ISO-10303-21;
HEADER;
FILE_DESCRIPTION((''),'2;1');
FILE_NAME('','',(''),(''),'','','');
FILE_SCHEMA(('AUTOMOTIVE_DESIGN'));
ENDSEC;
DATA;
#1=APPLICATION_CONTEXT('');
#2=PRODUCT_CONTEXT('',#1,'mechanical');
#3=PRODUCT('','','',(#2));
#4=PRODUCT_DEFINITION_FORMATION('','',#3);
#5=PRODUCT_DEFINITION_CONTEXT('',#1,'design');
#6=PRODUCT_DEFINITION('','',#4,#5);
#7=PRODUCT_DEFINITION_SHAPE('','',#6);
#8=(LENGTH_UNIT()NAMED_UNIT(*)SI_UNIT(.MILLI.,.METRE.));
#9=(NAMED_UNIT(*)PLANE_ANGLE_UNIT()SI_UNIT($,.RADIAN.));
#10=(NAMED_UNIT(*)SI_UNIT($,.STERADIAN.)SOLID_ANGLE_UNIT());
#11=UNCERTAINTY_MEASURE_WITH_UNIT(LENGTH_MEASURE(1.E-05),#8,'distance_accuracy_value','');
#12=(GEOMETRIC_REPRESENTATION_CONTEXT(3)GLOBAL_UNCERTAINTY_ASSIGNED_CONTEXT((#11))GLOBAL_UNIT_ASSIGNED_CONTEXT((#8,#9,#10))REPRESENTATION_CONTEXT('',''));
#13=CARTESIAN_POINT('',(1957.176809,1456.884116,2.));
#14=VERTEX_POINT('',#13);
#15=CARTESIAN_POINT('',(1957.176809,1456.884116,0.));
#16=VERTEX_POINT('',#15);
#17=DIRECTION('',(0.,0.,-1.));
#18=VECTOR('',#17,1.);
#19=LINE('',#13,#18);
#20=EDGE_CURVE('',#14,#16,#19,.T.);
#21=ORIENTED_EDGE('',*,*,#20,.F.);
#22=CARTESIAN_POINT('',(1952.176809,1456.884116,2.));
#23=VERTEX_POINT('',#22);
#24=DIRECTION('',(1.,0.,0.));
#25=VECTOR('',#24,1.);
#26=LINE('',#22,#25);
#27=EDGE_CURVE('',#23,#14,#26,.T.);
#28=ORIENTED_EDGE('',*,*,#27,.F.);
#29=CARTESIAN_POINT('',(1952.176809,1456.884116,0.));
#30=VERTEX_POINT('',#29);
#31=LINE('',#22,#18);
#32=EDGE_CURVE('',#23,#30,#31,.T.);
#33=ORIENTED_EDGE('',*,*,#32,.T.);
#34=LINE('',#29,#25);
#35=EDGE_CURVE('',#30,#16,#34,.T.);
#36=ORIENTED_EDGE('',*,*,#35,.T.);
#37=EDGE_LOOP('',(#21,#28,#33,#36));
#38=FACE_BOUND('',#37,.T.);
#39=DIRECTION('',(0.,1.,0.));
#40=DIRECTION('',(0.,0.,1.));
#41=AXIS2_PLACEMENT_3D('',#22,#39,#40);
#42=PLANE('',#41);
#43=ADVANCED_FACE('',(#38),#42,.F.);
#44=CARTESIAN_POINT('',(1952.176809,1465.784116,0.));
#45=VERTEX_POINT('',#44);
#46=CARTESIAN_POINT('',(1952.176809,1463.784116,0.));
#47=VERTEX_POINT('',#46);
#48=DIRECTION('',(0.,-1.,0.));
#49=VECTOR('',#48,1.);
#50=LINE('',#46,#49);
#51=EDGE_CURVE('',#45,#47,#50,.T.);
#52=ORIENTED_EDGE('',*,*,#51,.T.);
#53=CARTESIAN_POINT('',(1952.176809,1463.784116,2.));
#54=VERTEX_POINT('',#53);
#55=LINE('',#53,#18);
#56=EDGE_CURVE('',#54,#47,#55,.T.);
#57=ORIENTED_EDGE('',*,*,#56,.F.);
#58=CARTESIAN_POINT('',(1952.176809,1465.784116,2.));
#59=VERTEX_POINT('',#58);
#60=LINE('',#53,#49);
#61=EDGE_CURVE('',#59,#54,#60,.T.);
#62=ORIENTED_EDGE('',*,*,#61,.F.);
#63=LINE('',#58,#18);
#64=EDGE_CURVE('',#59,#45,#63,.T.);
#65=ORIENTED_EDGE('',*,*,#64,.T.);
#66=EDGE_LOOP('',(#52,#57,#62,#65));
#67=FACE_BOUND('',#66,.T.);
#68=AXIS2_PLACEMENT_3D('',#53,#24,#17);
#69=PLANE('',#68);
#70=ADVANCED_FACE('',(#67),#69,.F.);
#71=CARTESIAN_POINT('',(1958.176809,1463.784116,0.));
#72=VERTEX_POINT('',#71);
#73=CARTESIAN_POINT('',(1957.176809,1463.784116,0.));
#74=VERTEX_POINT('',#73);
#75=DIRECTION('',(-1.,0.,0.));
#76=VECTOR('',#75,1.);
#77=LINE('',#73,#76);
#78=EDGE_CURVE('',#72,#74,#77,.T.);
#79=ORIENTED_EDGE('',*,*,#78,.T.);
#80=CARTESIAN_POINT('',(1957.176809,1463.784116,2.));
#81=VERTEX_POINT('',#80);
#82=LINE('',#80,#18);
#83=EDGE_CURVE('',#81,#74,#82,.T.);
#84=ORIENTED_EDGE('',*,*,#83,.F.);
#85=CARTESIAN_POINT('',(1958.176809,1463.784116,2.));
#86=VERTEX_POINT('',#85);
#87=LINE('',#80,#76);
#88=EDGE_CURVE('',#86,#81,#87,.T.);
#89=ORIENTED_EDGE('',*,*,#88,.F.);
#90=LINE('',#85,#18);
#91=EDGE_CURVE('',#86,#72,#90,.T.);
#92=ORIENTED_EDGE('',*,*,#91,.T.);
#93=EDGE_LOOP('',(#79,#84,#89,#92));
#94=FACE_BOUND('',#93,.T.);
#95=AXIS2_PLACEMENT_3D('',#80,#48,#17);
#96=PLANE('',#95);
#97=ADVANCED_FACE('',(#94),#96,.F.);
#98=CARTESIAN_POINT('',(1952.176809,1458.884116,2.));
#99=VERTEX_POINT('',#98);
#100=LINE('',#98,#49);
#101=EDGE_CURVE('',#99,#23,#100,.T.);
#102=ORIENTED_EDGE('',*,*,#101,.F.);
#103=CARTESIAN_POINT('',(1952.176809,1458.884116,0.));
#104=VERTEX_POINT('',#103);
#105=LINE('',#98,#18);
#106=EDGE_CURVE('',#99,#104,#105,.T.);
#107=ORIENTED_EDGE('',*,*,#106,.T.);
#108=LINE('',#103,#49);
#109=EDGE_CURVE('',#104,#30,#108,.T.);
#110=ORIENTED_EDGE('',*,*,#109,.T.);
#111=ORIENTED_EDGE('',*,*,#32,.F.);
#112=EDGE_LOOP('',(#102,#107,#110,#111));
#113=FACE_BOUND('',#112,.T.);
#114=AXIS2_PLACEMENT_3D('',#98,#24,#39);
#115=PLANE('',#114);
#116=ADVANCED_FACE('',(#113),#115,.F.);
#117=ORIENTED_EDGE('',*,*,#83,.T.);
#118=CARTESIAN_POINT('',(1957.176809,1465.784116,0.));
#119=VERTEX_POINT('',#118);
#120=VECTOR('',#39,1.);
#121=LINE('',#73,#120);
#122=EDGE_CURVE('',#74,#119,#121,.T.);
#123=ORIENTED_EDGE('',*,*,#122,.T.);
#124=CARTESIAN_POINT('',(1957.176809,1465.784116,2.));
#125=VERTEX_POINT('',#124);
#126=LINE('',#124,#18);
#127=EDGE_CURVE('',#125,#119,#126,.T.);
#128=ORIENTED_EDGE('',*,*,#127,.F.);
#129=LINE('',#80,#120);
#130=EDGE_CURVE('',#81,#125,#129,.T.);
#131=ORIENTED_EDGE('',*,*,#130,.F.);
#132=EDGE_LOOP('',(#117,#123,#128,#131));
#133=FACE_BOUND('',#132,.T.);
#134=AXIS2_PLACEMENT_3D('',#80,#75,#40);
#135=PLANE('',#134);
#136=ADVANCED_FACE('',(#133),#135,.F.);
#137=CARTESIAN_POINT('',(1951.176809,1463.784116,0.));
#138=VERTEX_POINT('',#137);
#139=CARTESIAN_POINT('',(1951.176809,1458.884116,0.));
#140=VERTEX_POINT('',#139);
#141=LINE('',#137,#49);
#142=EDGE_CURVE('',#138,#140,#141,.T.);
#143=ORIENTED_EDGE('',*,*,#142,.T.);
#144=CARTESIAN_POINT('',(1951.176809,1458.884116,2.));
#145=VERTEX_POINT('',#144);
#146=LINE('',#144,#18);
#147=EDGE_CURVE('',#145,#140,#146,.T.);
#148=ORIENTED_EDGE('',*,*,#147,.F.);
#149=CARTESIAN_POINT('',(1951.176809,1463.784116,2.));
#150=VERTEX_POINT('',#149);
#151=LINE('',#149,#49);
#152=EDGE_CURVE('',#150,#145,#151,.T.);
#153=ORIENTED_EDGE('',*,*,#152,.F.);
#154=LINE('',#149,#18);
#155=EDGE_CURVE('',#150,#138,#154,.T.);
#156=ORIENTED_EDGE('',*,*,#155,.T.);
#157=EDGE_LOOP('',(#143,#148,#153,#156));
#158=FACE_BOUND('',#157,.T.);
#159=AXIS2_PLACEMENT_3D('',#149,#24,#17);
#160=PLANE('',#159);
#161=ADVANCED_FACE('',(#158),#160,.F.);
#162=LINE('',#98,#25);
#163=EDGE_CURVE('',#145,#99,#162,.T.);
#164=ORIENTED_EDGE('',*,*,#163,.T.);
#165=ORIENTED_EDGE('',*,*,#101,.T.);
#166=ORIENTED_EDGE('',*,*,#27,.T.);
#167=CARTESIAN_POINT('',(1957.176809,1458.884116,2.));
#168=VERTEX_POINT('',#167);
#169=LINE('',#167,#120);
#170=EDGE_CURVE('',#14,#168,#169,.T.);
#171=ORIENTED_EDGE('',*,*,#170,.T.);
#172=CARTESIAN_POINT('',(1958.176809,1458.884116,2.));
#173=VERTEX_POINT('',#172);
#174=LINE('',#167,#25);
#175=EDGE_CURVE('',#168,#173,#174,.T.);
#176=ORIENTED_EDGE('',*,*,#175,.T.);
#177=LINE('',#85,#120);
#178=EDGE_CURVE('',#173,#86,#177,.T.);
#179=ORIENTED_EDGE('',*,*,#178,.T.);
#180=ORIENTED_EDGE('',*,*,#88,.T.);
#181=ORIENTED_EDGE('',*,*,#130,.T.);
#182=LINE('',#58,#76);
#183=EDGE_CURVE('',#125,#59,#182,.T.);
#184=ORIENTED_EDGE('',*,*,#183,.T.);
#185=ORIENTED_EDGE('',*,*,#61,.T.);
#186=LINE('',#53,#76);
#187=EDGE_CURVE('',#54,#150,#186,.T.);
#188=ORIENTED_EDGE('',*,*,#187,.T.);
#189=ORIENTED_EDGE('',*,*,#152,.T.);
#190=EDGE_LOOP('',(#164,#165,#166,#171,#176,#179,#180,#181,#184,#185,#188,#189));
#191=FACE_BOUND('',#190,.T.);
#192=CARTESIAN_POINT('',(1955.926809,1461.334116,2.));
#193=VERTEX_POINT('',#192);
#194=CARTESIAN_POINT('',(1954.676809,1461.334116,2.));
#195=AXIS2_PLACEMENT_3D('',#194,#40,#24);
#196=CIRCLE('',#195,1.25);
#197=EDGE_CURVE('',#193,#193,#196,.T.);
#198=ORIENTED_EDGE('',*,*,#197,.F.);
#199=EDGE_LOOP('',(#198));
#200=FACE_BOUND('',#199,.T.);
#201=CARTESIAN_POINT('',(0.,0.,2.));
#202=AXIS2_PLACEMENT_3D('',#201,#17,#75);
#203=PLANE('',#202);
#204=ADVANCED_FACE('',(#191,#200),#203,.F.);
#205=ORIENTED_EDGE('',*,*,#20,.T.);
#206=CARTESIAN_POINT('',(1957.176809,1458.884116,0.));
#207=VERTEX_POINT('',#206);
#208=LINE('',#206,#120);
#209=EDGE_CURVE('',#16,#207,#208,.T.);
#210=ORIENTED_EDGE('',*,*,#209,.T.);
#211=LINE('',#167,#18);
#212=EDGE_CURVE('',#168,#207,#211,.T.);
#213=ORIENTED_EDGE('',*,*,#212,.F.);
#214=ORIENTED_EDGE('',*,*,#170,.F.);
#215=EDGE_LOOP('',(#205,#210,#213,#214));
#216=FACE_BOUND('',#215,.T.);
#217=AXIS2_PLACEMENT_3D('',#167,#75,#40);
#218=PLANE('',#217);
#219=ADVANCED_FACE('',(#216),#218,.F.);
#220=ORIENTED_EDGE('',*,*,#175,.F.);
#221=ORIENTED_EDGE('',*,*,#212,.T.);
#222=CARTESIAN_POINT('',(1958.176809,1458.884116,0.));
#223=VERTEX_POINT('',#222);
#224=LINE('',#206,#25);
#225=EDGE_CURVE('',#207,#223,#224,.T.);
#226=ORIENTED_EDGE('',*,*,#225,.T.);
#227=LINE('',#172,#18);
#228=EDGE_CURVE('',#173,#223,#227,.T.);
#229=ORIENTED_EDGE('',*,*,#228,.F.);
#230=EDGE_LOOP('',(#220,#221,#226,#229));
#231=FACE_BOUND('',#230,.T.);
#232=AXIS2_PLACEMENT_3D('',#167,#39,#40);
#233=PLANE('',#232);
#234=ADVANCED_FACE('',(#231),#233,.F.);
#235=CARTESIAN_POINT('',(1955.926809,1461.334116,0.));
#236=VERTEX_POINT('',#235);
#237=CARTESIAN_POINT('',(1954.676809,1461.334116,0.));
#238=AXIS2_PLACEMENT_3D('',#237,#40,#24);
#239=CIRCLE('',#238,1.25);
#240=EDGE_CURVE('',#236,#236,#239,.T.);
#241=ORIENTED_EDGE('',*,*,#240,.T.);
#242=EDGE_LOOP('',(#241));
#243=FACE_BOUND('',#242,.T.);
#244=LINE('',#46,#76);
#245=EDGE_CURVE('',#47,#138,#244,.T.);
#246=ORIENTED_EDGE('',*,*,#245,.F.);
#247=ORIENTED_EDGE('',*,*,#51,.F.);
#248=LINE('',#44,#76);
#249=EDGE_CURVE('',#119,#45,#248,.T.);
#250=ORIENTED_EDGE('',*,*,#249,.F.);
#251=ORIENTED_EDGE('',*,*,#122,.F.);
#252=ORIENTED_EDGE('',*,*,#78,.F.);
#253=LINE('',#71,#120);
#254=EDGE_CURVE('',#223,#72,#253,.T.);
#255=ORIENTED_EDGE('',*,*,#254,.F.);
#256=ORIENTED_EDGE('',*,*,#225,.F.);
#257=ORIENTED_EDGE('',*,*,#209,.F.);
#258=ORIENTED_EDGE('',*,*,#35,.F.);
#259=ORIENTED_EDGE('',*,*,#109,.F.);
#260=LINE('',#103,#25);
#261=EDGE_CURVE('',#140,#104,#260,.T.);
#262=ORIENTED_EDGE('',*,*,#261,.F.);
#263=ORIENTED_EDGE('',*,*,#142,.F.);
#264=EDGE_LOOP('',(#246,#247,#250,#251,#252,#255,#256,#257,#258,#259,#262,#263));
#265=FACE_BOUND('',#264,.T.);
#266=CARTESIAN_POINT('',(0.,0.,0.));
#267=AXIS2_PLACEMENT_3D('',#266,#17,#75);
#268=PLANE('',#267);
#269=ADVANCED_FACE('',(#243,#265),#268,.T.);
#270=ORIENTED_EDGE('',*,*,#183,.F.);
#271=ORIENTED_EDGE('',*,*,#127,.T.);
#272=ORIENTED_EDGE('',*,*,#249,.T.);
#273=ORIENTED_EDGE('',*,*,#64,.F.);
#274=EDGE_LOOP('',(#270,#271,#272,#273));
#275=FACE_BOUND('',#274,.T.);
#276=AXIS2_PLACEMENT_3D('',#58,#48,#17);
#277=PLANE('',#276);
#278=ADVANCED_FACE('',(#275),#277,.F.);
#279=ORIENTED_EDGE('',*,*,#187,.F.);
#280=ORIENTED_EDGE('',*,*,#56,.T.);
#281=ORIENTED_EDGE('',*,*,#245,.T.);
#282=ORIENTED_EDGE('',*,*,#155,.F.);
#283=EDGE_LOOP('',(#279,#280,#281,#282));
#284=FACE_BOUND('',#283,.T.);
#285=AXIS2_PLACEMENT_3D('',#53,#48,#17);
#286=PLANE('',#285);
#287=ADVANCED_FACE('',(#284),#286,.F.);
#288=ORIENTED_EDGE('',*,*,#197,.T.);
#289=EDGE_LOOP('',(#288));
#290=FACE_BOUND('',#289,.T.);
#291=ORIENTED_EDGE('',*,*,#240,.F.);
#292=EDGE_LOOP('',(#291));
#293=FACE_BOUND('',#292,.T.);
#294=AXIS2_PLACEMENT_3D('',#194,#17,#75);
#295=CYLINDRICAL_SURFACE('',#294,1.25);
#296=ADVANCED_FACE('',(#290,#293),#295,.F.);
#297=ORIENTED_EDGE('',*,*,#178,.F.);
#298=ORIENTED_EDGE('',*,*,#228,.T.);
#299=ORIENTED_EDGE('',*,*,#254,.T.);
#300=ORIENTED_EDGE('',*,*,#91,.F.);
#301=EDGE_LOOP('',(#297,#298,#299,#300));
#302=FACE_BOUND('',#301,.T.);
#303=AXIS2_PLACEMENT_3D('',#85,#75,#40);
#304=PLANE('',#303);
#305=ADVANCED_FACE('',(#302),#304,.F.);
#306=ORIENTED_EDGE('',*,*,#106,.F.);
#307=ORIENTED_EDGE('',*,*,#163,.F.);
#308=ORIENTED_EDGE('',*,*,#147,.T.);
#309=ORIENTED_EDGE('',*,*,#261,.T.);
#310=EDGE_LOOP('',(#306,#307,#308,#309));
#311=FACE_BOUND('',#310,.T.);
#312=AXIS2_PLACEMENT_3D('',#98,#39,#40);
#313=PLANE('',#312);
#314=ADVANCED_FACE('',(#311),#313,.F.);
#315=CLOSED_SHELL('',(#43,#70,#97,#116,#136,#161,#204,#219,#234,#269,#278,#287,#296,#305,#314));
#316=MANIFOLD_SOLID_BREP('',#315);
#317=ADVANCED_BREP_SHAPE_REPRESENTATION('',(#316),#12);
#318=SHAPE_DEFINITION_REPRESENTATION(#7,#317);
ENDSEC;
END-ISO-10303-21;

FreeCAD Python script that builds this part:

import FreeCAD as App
import Part
import Sketcher
from FreeCAD import Vector
Q = App.Units.Quantity


def add_polygon(sketch, points):
    """Adds a closed chain of lines whose ends are joined by coincident constraints."""
    first, n = sketch.GeometryCount, len(points)
    for a, b in zip(points, points[1:] + points[:1]):
        sketch.addGeometry(Part.LineSegment(App.Vector(*a, 0), App.Vector(*b, 0)), False)
    for i in range(n):
        sketch.addConstraint(Sketcher.Constraint("Coincident", first + i, 2, first + (i + 1) % n, 1))

doc = App.newDocument("Part")
body = doc.addObject("PartDesign::Body", "Body")

# Sketch on XY plane
sketch1 = body.newObject("Sketcher::SketchObject", "Sketch")
sketch1.AttachmentSupport = (doc.getObject("XY_Plane"), [""])
sketch1.MapMode = "FlatFace"
add_polygon(sketch1, [(1957.176809, 1465.784116), (1952.176809, 1465.784116), (1952.176809, 1463.784116), (1951.176809, 1463.784116), (1951.176809, 1458.884116), (1952.176809, 1458.884116), (1952.176809, 1456.884116), (1957.176809, 1456.884116), (1957.176809, 1458.884116), (1958.176809, 1458.884116), (1958.176809, 1463.784116), (1957.176809, 1463.784116)])  # lines 0-11
sketch1.addGeometry(Part.Circle(Vector(1954.676809, 1461.334116, 0), Vector(0, 0, 1), 1.25), False)  # 12
sketch1.addConstraint([
    Sketcher.Constraint("Horizontal", 0),
    Sketcher.Constraint("Vertical", 1),
    Sketcher.Constraint("Horizontal", 2),
    Sketcher.Constraint("Vertical", 3),
    Sketcher.Constraint("Horizontal", 4),
    Sketcher.Constraint("Vertical", 5),
    Sketcher.Constraint("Horizontal", 6),
    Sketcher.Constraint("Vertical", 7),
    Sketcher.Constraint("Horizontal", 8),
    Sketcher.Constraint("Vertical", 9),
    Sketcher.Constraint("Horizontal", 10),
    Sketcher.Constraint("Vertical", 11),
    Sketcher.Constraint("Horizontal", 4, 2, 7, 2),
    Sketcher.Constraint("Horizontal", 2, 2, 9, 2),
    Sketcher.Constraint("Vertical", 1, 2, 4, 2),
    Sketcher.Constraint("Vertical", 7, 2, 10, 2),
    Sketcher.Constraint("Equal", 4, 8),
    Sketcher.Constraint("Equal", 1, 5),
    Sketcher.Constraint("Diameter", 12, Q("2.5 mm")),
    Sketcher.Constraint("DistanceX", 0, 2, 0, 1, Q("5 mm")),
    Sketcher.Constraint("DistanceX", 2, 2, 2, 1, Q("1 mm")),
    Sketcher.Constraint("DistanceY", 1, 2, 1, 1, Q("2 mm")),
    Sketcher.Constraint("DistanceY", 3, 2, 3, 1, Q("4.9 mm")),
    Sketcher.Constraint("DistanceX", 0, 2, 12, 3, Q("2.5 mm")),
    Sketcher.Constraint("DistanceY", 12, 3, 0, 2, Q("4.45 mm")),
    Sketcher.Constraint("DistanceX", -1, 1, 12, 3, Q("1954.676809 mm")),
    Sketcher.Constraint("DistanceY", -1, 1, 12, 3, Q("1461.334116 mm")),
])
pad1 = body.newObject("PartDesign::Pad", "Pad")
pad1.Profile = sketch1
pad1.Length = 2

doc.recompute()
